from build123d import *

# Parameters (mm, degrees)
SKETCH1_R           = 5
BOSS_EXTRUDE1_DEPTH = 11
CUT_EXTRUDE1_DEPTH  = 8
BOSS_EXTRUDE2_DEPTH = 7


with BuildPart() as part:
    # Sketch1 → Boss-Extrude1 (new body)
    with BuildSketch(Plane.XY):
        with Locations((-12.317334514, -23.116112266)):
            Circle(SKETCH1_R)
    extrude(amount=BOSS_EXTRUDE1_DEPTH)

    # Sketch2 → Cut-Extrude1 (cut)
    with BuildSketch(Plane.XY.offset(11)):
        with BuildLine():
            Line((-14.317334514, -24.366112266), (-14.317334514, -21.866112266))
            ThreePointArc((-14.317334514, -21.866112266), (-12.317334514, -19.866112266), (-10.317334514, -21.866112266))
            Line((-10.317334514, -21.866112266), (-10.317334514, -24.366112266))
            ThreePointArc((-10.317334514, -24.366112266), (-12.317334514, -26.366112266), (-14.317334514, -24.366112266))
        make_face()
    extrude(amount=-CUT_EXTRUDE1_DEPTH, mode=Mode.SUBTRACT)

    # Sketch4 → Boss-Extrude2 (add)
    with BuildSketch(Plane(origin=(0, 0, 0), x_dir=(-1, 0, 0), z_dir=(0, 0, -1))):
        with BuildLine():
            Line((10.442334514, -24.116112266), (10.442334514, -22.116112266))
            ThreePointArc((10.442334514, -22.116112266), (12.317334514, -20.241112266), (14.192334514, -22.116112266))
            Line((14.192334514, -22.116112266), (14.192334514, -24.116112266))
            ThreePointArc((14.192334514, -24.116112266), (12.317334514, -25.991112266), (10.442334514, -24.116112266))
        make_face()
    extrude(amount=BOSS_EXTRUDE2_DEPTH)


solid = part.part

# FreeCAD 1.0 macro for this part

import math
import FreeCAD as App
import Part
import Sketcher

V = App.Vector
Q = App.Units.Quantity

doc = App.newDocument("Part")
body = doc.addObject("PartDesign::Body", "Body")

# Sketch on XY plane
sketch1 = body.newObject("Sketcher::SketchObject", "Sketch")
sketch1.AttachmentSupport = (doc.getObject("XY_Plane"), [""])
sketch1.MapMode = "FlatFace"
sketch1.addGeometry(Part.Circle(V(-12.317335, -23.116112, 0), V(0, 0, 1), 5), False)
sketch1.addConstraint([
    Sketcher.Constraint("Diameter", 0, Q("10 mm")),
    Sketcher.Constraint("DistanceX", 0, 3, -1, 1, Q("12.317335 mm")),
    Sketcher.Constraint("DistanceY", 0, 3, -1, 1, Q("23.116112 mm")),
])
pad1 = body.newObject("PartDesign::Pad", "Pad")
pad1.Profile = sketch1
pad1.Length = 11

# Sketch on XY plane
sketch2 = body.newObject("Sketcher::SketchObject", "Sketch001")
sketch2.AttachmentSupport = (doc.getObject("XY_Plane"), [""])
sketch2.MapMode = "FlatFace"
sketch2.AttachmentOffset = App.Placement(V(0, 0, 11), App.Rotation())
sketch2.addGeometry([
    Part.LineSegment(V(-14.317335, -21.866112, 0), V(-14.317335, -24.366112, 0)),
    Part.ArcOfCircle(Part.Circle(V(-12.317335, -24.366112, 0), V(0, 0, 1), 2), math.radians(180), math.radians(360)),
    Part.LineSegment(V(-10.317335, -24.366112, 0), V(-10.317335, -21.866112, 0)),
    Part.ArcOfCircle(Part.Circle(V(-12.317335, -21.866112, 0), V(0, 0, 1), 2), math.radians(0), math.radians(180)),
], False)
sketch2.addConstraint([
    Sketcher.Constraint("Tangent", 0, 2, 1, 1),
    Sketcher.Constraint("Tangent", 1, 2, 2, 1),
    Sketcher.Constraint("Tangent", 2, 2, 3, 1),
    Sketcher.Constraint("Tangent", 3, 2, 0, 1),
    Sketcher.Constraint("Vertical", 0),
    Sketcher.Constraint("Vertical", 2),
    Sketcher.Constraint("Radius", 1, Q("2 mm")),
    Sketcher.Constraint("DistanceY", 0, 2, 0, 1, Q("2.5 mm")),
    Sketcher.Constraint("DistanceX", 1, 3, -1, 1, Q("12.317335 mm")),
    Sketcher.Constraint("DistanceY", 1, 3, -1, 1, Q("24.366112 mm")),
])
pocket1 = body.newObject("PartDesign::Pocket", "Pocket")
pocket1.Profile = sketch2
pocket1.Length = 8

# Sketch on XY plane
sketch3 = body.newObject("Sketcher::SketchObject", "Sketch002")
sketch3.AttachmentSupport = (doc.getObject("XY_Plane"), [""])
sketch3.MapMode = "FlatFace"
sketch3.addGeometry([
    Part.LineSegment(V(-10.442335, -22.116112, 0), V(-10.442335, -24.116112, 0)),
    Part.ArcOfCircle(Part.Circle(V(-12.317335, -24.116112, 0), V(0, 0, 1), 1.875), math.radians(180), math.radians(360)),
    Part.LineSegment(V(-14.192335, -24.116112, 0), V(-14.192335, -22.116112, 0)),
    Part.ArcOfCircle(Part.Circle(V(-12.317335, -22.116112, 0), V(0, 0, 1), 1.875), math.radians(0), math.radians(180)),
], False)
sketch3.addConstraint([
    Sketcher.Constraint("Tangent", 0, 2, 1, 2),
    Sketcher.Constraint("Tangent", 1, 1, 2, 1),
    Sketcher.Constraint("Tangent", 2, 2, 3, 2),
    Sketcher.Constraint("Tangent", 3, 1, 0, 1),
    Sketcher.Constraint("Vertical", 0),
    Sketcher.Constraint("Vertical", 2),
    Sketcher.Constraint("DistanceY", 0, 2, 0, 1, Q("2 mm")),
    Sketcher.Constraint("Radius", 1, Q("1.875 mm")),
    Sketcher.Constraint("DistanceX", 1, 3, -1, 1, Q("12.317335 mm")),
    Sketcher.Constraint("DistanceY", 1, 3, -1, 1, Q("24.116112 mm")),
])
pad2 = body.newObject("PartDesign::Pad", "Pad001")
pad2.Profile = sketch3
pad2.Length = 7
pad2.Reversed = True

doc.recompute()
